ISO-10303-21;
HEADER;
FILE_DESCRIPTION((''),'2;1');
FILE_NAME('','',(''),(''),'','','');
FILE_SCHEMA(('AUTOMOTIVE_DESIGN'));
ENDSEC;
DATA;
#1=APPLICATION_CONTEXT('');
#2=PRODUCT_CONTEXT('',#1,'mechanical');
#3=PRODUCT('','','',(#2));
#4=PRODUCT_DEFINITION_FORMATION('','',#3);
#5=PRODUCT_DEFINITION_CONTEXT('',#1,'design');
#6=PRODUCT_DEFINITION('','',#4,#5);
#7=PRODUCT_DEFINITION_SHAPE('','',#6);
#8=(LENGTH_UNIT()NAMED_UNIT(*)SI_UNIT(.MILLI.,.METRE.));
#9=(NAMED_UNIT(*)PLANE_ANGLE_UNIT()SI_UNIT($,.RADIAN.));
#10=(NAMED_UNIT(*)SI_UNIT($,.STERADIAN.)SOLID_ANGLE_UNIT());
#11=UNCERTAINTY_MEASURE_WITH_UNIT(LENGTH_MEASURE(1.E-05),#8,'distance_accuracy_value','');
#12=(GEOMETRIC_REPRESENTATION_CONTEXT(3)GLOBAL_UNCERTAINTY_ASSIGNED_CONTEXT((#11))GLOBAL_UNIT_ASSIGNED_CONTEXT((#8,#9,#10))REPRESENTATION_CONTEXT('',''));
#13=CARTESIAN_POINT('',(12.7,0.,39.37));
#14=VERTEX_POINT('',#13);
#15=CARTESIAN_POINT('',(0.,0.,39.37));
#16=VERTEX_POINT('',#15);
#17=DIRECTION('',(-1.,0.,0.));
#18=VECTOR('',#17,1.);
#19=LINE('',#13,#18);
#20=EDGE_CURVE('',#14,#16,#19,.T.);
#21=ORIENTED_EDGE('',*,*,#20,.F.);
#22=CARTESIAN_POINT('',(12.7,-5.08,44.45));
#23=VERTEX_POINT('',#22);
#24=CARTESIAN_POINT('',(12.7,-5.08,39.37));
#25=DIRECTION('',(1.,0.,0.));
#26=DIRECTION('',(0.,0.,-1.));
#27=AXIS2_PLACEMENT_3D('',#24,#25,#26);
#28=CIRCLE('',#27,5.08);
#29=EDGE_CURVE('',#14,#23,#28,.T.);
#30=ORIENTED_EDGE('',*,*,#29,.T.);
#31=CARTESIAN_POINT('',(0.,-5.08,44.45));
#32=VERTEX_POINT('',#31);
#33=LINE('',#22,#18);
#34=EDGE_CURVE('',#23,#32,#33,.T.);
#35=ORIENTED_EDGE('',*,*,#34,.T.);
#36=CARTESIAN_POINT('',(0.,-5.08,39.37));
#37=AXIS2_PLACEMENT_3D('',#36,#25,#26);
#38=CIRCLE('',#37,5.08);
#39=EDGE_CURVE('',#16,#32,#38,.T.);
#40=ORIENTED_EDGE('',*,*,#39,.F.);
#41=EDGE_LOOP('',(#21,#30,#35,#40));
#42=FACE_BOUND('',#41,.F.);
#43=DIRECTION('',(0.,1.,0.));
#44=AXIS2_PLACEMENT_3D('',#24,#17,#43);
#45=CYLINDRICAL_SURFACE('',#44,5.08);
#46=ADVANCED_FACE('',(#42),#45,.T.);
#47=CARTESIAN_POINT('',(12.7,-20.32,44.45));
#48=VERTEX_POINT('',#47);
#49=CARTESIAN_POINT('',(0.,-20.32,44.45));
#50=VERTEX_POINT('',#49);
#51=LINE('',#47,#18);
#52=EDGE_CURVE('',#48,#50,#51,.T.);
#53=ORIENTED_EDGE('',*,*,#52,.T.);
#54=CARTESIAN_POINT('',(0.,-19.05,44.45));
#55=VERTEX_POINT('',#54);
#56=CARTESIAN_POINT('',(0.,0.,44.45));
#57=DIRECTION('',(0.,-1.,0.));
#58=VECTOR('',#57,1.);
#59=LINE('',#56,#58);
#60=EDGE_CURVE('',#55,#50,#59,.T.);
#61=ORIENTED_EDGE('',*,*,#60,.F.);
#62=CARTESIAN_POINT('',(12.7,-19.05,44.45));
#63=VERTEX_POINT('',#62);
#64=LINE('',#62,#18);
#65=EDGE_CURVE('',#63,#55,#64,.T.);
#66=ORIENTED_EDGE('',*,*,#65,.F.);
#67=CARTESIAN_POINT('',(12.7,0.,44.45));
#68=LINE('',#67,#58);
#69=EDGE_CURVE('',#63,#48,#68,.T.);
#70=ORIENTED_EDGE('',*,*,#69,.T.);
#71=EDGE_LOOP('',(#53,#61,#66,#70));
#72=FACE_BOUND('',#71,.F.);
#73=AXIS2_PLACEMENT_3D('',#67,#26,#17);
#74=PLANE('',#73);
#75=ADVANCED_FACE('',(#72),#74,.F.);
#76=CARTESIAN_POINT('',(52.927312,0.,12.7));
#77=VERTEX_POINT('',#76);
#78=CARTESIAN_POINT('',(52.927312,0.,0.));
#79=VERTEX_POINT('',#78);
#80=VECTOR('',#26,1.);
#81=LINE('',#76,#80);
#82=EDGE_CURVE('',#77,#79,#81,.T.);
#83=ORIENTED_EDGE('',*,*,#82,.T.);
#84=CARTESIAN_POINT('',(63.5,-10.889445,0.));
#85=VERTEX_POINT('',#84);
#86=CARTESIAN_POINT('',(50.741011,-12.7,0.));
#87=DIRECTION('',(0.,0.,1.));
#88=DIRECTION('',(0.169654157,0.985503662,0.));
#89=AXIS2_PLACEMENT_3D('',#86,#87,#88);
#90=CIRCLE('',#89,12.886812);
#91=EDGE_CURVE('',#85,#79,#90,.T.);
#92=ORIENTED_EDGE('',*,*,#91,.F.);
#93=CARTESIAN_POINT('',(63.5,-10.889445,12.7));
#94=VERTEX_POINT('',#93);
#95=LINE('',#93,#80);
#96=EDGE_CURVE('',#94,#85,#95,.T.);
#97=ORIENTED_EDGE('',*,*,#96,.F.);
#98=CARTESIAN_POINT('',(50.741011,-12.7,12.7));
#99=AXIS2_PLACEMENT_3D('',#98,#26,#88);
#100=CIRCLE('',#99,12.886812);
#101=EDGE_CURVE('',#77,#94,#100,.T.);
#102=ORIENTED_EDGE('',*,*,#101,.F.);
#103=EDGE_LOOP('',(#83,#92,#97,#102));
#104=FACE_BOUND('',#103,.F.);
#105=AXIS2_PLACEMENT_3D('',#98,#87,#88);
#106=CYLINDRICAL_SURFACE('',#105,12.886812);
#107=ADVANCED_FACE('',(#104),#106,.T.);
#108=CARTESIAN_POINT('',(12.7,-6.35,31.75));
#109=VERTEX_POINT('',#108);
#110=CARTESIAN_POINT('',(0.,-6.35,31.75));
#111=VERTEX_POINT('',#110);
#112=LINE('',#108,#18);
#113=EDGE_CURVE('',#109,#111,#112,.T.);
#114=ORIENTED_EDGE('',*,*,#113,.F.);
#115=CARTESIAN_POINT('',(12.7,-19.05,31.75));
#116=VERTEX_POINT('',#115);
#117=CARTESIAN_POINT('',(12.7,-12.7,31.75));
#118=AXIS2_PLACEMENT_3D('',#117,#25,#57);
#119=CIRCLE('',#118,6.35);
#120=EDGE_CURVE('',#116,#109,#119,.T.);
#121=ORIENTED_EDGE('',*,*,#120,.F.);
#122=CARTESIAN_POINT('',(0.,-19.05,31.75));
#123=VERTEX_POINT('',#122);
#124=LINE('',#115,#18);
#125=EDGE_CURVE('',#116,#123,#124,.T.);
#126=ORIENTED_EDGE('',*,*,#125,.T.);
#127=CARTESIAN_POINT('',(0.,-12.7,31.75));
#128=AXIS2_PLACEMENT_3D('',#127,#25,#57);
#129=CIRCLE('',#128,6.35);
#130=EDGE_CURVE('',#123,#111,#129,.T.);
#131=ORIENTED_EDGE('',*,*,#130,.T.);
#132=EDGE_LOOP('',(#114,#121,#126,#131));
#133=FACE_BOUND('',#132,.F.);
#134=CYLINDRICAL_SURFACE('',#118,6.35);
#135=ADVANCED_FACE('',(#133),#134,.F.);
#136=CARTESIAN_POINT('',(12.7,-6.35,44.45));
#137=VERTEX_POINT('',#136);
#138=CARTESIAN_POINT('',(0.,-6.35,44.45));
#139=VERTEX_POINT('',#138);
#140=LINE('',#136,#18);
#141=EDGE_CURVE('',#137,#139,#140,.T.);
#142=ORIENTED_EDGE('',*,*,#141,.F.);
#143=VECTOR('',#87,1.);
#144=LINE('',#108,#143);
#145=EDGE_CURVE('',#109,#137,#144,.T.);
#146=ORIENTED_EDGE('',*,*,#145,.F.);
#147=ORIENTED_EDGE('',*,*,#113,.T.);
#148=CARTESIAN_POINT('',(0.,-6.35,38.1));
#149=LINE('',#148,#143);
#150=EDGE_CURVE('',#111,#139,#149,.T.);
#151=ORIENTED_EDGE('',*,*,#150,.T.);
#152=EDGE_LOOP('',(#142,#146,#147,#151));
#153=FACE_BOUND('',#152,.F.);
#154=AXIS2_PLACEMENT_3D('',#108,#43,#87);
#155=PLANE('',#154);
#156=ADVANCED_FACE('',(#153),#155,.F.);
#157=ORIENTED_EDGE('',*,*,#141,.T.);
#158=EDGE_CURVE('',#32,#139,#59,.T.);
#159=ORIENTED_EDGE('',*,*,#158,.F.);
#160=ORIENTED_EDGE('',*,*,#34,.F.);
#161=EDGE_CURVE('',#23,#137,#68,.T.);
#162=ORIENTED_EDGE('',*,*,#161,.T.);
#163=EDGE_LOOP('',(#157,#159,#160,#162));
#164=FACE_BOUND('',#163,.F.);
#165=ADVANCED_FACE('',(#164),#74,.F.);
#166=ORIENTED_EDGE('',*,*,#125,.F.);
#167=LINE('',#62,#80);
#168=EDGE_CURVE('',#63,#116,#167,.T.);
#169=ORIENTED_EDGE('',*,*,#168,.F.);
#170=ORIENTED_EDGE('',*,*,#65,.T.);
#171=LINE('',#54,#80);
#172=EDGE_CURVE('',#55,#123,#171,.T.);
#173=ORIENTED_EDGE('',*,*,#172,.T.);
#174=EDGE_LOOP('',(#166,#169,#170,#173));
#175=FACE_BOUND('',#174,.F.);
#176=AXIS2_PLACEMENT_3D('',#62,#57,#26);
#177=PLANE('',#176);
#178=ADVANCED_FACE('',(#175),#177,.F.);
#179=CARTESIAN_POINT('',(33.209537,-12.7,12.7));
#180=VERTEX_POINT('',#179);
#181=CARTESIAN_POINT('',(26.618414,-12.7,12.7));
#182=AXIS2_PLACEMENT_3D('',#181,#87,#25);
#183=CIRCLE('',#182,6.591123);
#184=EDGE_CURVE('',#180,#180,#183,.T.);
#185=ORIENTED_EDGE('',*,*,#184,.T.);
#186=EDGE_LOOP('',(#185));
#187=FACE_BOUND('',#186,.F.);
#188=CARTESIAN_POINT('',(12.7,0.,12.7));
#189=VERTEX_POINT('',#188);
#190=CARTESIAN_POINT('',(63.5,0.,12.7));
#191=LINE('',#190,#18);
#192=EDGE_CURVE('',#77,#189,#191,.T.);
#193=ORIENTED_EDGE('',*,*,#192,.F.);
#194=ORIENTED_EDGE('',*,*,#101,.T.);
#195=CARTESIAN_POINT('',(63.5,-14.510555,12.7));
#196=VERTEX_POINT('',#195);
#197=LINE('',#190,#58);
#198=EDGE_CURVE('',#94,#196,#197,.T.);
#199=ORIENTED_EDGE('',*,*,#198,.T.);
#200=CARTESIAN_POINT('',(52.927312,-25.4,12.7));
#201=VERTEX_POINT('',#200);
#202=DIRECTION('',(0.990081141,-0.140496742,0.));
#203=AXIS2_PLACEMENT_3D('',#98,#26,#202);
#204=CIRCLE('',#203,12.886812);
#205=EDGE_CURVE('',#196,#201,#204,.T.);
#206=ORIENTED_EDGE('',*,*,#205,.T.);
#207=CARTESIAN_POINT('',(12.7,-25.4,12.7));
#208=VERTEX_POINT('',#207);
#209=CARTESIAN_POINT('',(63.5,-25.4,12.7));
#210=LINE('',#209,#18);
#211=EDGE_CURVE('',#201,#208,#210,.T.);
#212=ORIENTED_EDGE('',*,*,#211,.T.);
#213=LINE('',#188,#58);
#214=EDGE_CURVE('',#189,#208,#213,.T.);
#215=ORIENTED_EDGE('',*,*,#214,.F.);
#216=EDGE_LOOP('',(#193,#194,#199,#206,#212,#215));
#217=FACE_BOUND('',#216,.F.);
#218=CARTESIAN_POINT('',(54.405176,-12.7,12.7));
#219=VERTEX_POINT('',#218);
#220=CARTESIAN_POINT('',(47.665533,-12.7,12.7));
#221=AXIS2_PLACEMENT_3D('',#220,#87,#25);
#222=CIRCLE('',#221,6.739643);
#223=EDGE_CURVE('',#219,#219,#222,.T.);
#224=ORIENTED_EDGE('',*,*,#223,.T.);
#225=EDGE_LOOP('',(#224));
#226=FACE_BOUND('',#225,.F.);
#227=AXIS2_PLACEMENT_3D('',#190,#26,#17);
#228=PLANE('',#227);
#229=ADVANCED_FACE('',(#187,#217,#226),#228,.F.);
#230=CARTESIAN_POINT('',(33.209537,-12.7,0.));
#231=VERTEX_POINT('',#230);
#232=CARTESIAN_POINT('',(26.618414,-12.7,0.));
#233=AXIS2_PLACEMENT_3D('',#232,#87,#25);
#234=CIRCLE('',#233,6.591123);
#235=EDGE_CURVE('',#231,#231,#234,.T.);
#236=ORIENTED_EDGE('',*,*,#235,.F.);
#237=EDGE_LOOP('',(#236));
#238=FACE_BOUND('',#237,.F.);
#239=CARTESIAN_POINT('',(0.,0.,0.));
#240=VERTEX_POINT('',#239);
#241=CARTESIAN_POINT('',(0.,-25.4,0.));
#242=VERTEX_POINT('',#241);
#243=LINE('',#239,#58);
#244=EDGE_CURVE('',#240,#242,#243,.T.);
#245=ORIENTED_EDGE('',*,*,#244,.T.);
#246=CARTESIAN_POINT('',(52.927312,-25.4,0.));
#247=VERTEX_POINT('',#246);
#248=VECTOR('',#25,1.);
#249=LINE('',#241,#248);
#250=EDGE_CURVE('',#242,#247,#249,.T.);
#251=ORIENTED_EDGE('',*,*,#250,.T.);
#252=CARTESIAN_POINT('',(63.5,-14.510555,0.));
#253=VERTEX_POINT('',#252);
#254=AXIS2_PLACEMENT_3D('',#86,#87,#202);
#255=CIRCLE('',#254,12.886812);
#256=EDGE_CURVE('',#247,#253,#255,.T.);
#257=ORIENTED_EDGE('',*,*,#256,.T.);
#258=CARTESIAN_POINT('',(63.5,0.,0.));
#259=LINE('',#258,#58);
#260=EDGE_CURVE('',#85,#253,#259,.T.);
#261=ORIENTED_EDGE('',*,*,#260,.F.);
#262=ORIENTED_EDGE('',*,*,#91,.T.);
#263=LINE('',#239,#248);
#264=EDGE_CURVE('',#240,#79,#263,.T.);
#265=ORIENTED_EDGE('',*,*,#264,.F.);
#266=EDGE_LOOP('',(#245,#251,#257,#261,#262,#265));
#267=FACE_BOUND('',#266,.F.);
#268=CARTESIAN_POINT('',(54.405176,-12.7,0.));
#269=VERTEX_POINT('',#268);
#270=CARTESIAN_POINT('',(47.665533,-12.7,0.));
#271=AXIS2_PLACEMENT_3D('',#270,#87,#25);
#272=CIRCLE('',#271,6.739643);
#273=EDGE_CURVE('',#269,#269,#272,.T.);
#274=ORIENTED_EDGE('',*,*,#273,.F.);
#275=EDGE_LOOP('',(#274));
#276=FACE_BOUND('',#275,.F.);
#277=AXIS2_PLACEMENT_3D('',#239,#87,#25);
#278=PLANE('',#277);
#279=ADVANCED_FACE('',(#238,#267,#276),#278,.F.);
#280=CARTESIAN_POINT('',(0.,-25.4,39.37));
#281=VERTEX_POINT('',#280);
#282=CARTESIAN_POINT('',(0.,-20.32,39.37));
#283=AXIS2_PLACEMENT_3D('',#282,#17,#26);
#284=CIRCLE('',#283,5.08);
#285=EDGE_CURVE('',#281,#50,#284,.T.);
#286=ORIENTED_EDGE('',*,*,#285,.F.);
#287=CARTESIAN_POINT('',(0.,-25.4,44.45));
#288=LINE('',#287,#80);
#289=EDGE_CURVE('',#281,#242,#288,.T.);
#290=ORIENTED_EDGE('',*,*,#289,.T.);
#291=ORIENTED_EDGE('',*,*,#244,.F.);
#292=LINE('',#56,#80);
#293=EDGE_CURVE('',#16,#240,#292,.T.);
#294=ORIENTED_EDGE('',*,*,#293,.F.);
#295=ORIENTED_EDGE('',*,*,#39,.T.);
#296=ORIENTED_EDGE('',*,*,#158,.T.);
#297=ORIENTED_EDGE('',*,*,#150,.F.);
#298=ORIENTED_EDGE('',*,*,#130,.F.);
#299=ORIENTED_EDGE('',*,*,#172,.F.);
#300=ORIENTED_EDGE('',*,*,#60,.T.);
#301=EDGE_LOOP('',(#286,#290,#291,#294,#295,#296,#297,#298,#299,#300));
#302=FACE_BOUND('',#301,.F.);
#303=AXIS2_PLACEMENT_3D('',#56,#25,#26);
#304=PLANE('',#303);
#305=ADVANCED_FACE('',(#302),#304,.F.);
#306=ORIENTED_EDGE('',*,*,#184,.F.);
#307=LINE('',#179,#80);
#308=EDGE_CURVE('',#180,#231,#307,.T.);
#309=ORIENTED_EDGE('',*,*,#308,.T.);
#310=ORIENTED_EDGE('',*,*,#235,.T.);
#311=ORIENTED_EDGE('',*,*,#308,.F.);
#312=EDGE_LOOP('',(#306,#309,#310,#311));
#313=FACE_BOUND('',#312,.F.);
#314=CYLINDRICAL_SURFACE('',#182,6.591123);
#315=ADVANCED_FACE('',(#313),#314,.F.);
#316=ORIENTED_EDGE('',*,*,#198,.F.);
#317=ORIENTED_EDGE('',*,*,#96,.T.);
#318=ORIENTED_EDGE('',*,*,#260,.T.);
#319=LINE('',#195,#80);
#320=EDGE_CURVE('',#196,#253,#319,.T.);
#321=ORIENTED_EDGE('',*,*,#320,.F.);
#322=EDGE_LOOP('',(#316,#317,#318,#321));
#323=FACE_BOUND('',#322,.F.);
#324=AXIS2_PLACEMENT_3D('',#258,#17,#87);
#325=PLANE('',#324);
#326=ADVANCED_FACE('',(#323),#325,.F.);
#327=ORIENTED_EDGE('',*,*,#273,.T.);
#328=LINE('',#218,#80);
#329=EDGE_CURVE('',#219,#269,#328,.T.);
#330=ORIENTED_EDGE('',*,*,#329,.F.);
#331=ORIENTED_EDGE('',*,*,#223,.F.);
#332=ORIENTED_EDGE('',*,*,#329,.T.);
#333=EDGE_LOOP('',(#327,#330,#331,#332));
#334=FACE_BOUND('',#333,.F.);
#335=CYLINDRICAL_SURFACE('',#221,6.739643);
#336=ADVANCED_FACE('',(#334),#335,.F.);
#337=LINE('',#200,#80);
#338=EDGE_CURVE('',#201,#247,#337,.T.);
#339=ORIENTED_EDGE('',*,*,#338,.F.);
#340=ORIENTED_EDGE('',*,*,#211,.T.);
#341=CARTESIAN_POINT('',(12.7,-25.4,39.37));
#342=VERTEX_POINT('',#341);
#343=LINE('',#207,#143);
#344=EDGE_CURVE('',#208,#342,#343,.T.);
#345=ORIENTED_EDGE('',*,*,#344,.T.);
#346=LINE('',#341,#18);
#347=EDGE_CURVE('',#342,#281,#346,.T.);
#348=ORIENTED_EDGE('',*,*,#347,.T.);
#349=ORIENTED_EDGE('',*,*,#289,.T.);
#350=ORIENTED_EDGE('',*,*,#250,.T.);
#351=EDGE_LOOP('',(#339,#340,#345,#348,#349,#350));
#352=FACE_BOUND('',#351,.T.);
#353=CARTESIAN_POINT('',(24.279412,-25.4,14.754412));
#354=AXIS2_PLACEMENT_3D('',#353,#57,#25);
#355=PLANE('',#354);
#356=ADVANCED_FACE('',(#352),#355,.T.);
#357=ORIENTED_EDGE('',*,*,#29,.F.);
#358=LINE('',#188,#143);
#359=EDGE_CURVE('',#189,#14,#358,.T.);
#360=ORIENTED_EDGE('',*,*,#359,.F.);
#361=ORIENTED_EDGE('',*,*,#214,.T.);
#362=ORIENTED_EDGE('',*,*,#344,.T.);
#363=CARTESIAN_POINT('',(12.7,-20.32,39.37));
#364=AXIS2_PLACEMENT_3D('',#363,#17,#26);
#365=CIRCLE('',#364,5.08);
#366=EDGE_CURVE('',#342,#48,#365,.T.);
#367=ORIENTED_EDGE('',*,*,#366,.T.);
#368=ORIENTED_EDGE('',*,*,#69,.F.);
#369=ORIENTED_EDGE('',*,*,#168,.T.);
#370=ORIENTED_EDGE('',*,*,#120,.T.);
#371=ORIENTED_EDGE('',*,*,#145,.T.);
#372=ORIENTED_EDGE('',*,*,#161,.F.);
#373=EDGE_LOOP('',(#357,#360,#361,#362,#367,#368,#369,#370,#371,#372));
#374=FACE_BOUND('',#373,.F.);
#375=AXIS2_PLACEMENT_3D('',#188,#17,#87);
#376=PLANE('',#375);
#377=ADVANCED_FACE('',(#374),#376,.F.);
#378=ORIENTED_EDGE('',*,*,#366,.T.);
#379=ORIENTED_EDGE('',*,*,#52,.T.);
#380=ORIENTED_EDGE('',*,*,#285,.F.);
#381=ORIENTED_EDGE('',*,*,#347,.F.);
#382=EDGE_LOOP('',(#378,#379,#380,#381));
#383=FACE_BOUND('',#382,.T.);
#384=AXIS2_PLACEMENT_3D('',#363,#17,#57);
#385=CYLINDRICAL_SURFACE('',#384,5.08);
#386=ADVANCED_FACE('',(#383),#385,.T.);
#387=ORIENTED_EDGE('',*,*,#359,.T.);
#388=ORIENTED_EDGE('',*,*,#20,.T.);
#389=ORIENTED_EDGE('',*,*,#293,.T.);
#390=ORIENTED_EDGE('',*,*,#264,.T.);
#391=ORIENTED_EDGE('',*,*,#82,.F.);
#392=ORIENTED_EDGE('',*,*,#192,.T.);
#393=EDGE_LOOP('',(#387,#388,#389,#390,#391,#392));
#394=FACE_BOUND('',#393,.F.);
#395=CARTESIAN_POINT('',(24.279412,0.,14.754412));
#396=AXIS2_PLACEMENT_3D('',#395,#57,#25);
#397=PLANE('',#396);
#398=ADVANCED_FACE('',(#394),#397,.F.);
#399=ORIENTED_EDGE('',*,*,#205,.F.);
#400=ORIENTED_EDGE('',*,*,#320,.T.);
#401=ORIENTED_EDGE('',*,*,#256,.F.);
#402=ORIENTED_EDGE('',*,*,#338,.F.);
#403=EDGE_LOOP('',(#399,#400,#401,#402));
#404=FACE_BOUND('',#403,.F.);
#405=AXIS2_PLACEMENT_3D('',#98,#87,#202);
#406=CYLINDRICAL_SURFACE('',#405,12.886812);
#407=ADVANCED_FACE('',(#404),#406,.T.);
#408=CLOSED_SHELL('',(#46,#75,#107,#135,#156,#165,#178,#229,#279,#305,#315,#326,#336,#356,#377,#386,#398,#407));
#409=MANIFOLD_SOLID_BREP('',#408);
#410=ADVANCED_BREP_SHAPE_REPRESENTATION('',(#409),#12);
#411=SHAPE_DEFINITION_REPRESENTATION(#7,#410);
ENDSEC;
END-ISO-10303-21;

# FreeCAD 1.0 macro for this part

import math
import FreeCAD as App
import Part
import Sketcher

V = App.Vector
Q = App.Units.Quantity


def edges_at(feature, points):
    """Names of the edges that pass closest to the given points."""
    edges = feature.Shape.Edges
    near = lambda p: min(range(len(edges)), key=lambda i: edges[i].distToShape(Part.Vertex(*p))[0])
    return sorted({f"Edge{near(p) + 1}" for p in points})


def add_polygon(sketch, points):
    """Adds a closed chain of lines whose ends are joined by coincident constraints."""
    first, n = sketch.GeometryCount, len(points)
    for a, b in zip(points, points[1:] + points[:1]):
        sketch.addGeometry(Part.LineSegment(App.Vector(*a, 0), App.Vector(*b, 0)), False)
    for i in range(n):
        sketch.addConstraint(Sketcher.Constraint("Coincident", first + i, 2, first + (i + 1) % n, 1))

doc = App.newDocument("Part")
params = doc.addObject("Spreadsheet::Sheet", "Params")
for row, (alias, value) in enumerate([
    ("sketch1_width", "2 in"),
    ("sketch1_width2", "0.5 in"),
    ("sketch1_height", "1.75 in"),
    ("pad1_length", "1 in"),
    ("pocket1_length", "1 in"),
    ("pocket2_length", "1 in"),
    ("sketch4_radius", "0.25 in"),
    ("pocket3_length", "1 in"),
    ("fillet_radius", "0.2 in"),
    ("fillet2_radius", "0.2 in"),
], start=1):
    params.set(f"A{row}", alias)
    params.set(f"B{row}", "=" + value)
    params.setAlias(f"B{row}", alias)

body = doc.addObject("PartDesign::Body", "Body")

sketch1 = body.newObject("Sketcher::SketchObject", "Sketch")
sketch1.AttachmentSupport = (doc.getObject("XZ_Plane"), [""])
sketch1.MapMode = "FlatFace"
add_polygon(sketch1, [(13, 44), (0, 44), (0, 0), (64, 0), (64, 13), (13, 13)])
sketch1.addConstraint([
    Sketcher.Constraint("Horizontal", 0),
    Sketcher.Constraint("Vertical", 1),
    Sketcher.Constraint("Horizontal", 2),
    Sketcher.Constraint("Vertical", 3),
    Sketcher.Constraint("Horizontal", 4),
    Sketcher.Constraint("Vertical", 5),
    Sketcher.Constraint("Coincident", 1, 2, -1, 1),
    Sketcher.Constraint("Equal", 0, 3),
    Sketcher.Constraint("DistanceX", 4, 2, 4, 1, Q("2 in")),
    Sketcher.Constraint("DistanceX", 0, 2, 0, 1, Q("0.5 in")),
    Sketcher.Constraint("DistanceY", 1, 2, 1, 1, Q("1.75 in")),
])
sketch1.setExpression("Constraints[14]", "Params.sketch1_width")
sketch1.setExpression("Constraints[15]", "Params.sketch1_width2")
sketch1.setExpression("Constraints[16]", "Params.sketch1_height")
pad1 = body.newObject("PartDesign::Pad", "Pad")
pad1.Profile = sketch1
pad1.setExpression("Length", "Params.pad1_length")

sketch2 = body.newObject("Sketcher::SketchObject", "Sketch001")
sketch2.AttachmentSupport = (doc.getObject("XY_Plane"), [""])
sketch2.MapMode = "FlatFace"
sketch2.AttachmentOffset = App.Placement(V(0, 0, 0.5 * 25.4), App.Rotation())
sketch2.addGeometry([
    Part.ArcOfCircle(Part.Circle(V(51, -13, 0), V(0, 0, 1), 13), math.radians(-80), math.radians(-8)),
    Part.LineSegment(V(53, -25, 0), V(64, -25, 0)),
    Part.LineSegment(V(64, -25, 0), V(64, -15, 0)),
    Part.ArcOfCircle(Part.Circle(V(51, -13, 0), V(0, 0, 1), 13), math.radians(8), math.radians(80)),
    Part.LineSegment(V(64, -11, 0), V(64, 0, 0)),
    Part.LineSegment(V(64, 0, 0), V(53, 0, 0)),
], False)
sketch2.addConstraint([
    Sketcher.Constraint("Coincident", 0, 1, 1, 1),
    Sketcher.Constraint("Coincident", 1, 2, 2, 1),
    Sketcher.Constraint("Coincident", 2, 2, 0, 2),
    Sketcher.Constraint("Coincident", 3, 1, 4, 1),
    Sketcher.Constraint("Coincident", 4, 2, 5, 1),
    Sketcher.Constraint("Coincident", 5, 2, 3, 2),
    Sketcher.Constraint("Horizontal", 1),
    Sketcher.Constraint("Vertical", 2),
    Sketcher.Constraint("Vertical", 4),
    Sketcher.Constraint("Horizontal", 5),
    Sketcher.Constraint("Coincident", 3, 3, 0, 3),
    Sketcher.Constraint("Equal", 0, 3),
    Sketcher.Constraint("PointOnObject", 4, 2, -1),
    Sketcher.Constraint("Vertical", 2, 2, 3, 1),
    Sketcher.Constraint("Vertical", 0, 1, 5, 2),
    Sketcher.Constraint("DistanceY", 0, 1, -1, 1, Q("1 in")),
    Sketcher.Constraint("DistanceX", -1, 1, 1, 2, Q("2.5 in")),
    Sketcher.Constraint("Radius", 0, Q("12.886812 mm")),
    Sketcher.Constraint("DistanceX", 1, 1, 1, 2, Q("10.572688 mm")),
])
pocket1 = body.newObject("PartDesign::Pocket", "Pocket")
pocket1.Profile = sketch2
pocket1.setExpression("Length", "Params.pocket1_length")

sketch3 = body.newObject("Sketcher::SketchObject", "Sketch002")
sketch3.AttachmentSupport = (doc.getObject("XY_Plane"), [""])
sketch3.MapMode = "FlatFace"
sketch3.AttachmentOffset = App.Placement(V(0, 0, 0.5 * 25.4), App.Rotation())
sketch3.addGeometry([
    Part.Circle(V(27, -13, 0), V(0, 0, 1), 7),
    Part.Circle(V(48, -13, 0), V(0, 0, 1), 7),
], False)
sketch3.addConstraint([
    Sketcher.Constraint("Horizontal", 0, 3, 1, 3),
    Sketcher.Constraint("DistanceY", 0, 3, -1, 1, Q("0.5 in")),
    Sketcher.Constraint("Diameter", 0, Q("13.182246 mm")),
    Sketcher.Constraint("Diameter", 1, Q("13.479286 mm")),
    Sketcher.Constraint("DistanceX", 0, 3, 1, 3, Q("21.047119 mm")),
    Sketcher.Constraint("DistanceX", -1, 1, 0, 3, Q("26.618414 mm")),
])
pocket2 = body.newObject("PartDesign::Pocket", "Pocket001")
pocket2.Profile = sketch3
pocket2.setExpression("Length", "Params.pocket2_length")

sketch4 = body.newObject("Sketcher::SketchObject", "Sketch003")
sketch4.AttachmentSupport = (doc.getObject("YZ_Plane"), [""])
sketch4.MapMode = "FlatFace"
sketch4.AttachmentOffset = App.Placement(V(0, 0, 0.5 * 25.4), App.Rotation())
sketch4.addGeometry([
    Part.ArcOfCircle(Part.Circle(V(-13, 32, 0), V(0, 0, 1), 6), math.radians(180), math.radians(360)),
    Part.LineSegment(V(-6, 32, 0), V(-6, 44, 0)),
    Part.LineSegment(V(-6, 44, 0), V(-19, 44, 0)),
    Part.LineSegment(V(-19, 44, 0), V(-19, 32, 0)),
], False)
sketch4.addConstraint([
    Sketcher.Constraint("Tangent", 0, 2, 1, 1),
    Sketcher.Constraint("Coincident", 1, 2, 2, 1),
    Sketcher.Constraint("Coincident", 2, 2, 3, 1),
    Sketcher.Constraint("Tangent", 3, 2, 0, 1),
    Sketcher.Constraint("Vertical", 1),
    Sketcher.Constraint("Horizontal", 2),
    Sketcher.Constraint("Vertical", 3),
    Sketcher.Constraint("Equal", 2, 1),
    Sketcher.Constraint("Radius", 0, Q("0.25 in")),
    Sketcher.Constraint("DistanceX", 0, 3, -1, 1, Q("0.5 in")),
    Sketcher.Constraint("DistanceY", -1, 1, 0, 3, Q("1.25 in")),
])
sketch4.setExpression("Constraints[8]", "Params.sketch4_radius")
pocket3 = body.newObject("PartDesign::Pocket", "Pocket002")
pocket3.Profile = sketch4
pocket3.setExpression("Length", "Params.pocket3_length")
doc.recompute()

fillet = body.newObject("PartDesign::Fillet", "Fillet")
fillet.Base = (pocket3, edges_at(pocket3, [(6.35, -25.4, 44.45)]))
fillet.setExpression("Radius", "Params.fillet_radius")
doc.recompute()

fillet2 = body.newObject("PartDesign::Fillet", "Fillet001")
fillet2.Base = (fillet, edges_at(fillet, [(6.35, 0, 44.45)]))
fillet2.setExpression("Radius", "Params.fillet2_radius")

doc.recompute()
